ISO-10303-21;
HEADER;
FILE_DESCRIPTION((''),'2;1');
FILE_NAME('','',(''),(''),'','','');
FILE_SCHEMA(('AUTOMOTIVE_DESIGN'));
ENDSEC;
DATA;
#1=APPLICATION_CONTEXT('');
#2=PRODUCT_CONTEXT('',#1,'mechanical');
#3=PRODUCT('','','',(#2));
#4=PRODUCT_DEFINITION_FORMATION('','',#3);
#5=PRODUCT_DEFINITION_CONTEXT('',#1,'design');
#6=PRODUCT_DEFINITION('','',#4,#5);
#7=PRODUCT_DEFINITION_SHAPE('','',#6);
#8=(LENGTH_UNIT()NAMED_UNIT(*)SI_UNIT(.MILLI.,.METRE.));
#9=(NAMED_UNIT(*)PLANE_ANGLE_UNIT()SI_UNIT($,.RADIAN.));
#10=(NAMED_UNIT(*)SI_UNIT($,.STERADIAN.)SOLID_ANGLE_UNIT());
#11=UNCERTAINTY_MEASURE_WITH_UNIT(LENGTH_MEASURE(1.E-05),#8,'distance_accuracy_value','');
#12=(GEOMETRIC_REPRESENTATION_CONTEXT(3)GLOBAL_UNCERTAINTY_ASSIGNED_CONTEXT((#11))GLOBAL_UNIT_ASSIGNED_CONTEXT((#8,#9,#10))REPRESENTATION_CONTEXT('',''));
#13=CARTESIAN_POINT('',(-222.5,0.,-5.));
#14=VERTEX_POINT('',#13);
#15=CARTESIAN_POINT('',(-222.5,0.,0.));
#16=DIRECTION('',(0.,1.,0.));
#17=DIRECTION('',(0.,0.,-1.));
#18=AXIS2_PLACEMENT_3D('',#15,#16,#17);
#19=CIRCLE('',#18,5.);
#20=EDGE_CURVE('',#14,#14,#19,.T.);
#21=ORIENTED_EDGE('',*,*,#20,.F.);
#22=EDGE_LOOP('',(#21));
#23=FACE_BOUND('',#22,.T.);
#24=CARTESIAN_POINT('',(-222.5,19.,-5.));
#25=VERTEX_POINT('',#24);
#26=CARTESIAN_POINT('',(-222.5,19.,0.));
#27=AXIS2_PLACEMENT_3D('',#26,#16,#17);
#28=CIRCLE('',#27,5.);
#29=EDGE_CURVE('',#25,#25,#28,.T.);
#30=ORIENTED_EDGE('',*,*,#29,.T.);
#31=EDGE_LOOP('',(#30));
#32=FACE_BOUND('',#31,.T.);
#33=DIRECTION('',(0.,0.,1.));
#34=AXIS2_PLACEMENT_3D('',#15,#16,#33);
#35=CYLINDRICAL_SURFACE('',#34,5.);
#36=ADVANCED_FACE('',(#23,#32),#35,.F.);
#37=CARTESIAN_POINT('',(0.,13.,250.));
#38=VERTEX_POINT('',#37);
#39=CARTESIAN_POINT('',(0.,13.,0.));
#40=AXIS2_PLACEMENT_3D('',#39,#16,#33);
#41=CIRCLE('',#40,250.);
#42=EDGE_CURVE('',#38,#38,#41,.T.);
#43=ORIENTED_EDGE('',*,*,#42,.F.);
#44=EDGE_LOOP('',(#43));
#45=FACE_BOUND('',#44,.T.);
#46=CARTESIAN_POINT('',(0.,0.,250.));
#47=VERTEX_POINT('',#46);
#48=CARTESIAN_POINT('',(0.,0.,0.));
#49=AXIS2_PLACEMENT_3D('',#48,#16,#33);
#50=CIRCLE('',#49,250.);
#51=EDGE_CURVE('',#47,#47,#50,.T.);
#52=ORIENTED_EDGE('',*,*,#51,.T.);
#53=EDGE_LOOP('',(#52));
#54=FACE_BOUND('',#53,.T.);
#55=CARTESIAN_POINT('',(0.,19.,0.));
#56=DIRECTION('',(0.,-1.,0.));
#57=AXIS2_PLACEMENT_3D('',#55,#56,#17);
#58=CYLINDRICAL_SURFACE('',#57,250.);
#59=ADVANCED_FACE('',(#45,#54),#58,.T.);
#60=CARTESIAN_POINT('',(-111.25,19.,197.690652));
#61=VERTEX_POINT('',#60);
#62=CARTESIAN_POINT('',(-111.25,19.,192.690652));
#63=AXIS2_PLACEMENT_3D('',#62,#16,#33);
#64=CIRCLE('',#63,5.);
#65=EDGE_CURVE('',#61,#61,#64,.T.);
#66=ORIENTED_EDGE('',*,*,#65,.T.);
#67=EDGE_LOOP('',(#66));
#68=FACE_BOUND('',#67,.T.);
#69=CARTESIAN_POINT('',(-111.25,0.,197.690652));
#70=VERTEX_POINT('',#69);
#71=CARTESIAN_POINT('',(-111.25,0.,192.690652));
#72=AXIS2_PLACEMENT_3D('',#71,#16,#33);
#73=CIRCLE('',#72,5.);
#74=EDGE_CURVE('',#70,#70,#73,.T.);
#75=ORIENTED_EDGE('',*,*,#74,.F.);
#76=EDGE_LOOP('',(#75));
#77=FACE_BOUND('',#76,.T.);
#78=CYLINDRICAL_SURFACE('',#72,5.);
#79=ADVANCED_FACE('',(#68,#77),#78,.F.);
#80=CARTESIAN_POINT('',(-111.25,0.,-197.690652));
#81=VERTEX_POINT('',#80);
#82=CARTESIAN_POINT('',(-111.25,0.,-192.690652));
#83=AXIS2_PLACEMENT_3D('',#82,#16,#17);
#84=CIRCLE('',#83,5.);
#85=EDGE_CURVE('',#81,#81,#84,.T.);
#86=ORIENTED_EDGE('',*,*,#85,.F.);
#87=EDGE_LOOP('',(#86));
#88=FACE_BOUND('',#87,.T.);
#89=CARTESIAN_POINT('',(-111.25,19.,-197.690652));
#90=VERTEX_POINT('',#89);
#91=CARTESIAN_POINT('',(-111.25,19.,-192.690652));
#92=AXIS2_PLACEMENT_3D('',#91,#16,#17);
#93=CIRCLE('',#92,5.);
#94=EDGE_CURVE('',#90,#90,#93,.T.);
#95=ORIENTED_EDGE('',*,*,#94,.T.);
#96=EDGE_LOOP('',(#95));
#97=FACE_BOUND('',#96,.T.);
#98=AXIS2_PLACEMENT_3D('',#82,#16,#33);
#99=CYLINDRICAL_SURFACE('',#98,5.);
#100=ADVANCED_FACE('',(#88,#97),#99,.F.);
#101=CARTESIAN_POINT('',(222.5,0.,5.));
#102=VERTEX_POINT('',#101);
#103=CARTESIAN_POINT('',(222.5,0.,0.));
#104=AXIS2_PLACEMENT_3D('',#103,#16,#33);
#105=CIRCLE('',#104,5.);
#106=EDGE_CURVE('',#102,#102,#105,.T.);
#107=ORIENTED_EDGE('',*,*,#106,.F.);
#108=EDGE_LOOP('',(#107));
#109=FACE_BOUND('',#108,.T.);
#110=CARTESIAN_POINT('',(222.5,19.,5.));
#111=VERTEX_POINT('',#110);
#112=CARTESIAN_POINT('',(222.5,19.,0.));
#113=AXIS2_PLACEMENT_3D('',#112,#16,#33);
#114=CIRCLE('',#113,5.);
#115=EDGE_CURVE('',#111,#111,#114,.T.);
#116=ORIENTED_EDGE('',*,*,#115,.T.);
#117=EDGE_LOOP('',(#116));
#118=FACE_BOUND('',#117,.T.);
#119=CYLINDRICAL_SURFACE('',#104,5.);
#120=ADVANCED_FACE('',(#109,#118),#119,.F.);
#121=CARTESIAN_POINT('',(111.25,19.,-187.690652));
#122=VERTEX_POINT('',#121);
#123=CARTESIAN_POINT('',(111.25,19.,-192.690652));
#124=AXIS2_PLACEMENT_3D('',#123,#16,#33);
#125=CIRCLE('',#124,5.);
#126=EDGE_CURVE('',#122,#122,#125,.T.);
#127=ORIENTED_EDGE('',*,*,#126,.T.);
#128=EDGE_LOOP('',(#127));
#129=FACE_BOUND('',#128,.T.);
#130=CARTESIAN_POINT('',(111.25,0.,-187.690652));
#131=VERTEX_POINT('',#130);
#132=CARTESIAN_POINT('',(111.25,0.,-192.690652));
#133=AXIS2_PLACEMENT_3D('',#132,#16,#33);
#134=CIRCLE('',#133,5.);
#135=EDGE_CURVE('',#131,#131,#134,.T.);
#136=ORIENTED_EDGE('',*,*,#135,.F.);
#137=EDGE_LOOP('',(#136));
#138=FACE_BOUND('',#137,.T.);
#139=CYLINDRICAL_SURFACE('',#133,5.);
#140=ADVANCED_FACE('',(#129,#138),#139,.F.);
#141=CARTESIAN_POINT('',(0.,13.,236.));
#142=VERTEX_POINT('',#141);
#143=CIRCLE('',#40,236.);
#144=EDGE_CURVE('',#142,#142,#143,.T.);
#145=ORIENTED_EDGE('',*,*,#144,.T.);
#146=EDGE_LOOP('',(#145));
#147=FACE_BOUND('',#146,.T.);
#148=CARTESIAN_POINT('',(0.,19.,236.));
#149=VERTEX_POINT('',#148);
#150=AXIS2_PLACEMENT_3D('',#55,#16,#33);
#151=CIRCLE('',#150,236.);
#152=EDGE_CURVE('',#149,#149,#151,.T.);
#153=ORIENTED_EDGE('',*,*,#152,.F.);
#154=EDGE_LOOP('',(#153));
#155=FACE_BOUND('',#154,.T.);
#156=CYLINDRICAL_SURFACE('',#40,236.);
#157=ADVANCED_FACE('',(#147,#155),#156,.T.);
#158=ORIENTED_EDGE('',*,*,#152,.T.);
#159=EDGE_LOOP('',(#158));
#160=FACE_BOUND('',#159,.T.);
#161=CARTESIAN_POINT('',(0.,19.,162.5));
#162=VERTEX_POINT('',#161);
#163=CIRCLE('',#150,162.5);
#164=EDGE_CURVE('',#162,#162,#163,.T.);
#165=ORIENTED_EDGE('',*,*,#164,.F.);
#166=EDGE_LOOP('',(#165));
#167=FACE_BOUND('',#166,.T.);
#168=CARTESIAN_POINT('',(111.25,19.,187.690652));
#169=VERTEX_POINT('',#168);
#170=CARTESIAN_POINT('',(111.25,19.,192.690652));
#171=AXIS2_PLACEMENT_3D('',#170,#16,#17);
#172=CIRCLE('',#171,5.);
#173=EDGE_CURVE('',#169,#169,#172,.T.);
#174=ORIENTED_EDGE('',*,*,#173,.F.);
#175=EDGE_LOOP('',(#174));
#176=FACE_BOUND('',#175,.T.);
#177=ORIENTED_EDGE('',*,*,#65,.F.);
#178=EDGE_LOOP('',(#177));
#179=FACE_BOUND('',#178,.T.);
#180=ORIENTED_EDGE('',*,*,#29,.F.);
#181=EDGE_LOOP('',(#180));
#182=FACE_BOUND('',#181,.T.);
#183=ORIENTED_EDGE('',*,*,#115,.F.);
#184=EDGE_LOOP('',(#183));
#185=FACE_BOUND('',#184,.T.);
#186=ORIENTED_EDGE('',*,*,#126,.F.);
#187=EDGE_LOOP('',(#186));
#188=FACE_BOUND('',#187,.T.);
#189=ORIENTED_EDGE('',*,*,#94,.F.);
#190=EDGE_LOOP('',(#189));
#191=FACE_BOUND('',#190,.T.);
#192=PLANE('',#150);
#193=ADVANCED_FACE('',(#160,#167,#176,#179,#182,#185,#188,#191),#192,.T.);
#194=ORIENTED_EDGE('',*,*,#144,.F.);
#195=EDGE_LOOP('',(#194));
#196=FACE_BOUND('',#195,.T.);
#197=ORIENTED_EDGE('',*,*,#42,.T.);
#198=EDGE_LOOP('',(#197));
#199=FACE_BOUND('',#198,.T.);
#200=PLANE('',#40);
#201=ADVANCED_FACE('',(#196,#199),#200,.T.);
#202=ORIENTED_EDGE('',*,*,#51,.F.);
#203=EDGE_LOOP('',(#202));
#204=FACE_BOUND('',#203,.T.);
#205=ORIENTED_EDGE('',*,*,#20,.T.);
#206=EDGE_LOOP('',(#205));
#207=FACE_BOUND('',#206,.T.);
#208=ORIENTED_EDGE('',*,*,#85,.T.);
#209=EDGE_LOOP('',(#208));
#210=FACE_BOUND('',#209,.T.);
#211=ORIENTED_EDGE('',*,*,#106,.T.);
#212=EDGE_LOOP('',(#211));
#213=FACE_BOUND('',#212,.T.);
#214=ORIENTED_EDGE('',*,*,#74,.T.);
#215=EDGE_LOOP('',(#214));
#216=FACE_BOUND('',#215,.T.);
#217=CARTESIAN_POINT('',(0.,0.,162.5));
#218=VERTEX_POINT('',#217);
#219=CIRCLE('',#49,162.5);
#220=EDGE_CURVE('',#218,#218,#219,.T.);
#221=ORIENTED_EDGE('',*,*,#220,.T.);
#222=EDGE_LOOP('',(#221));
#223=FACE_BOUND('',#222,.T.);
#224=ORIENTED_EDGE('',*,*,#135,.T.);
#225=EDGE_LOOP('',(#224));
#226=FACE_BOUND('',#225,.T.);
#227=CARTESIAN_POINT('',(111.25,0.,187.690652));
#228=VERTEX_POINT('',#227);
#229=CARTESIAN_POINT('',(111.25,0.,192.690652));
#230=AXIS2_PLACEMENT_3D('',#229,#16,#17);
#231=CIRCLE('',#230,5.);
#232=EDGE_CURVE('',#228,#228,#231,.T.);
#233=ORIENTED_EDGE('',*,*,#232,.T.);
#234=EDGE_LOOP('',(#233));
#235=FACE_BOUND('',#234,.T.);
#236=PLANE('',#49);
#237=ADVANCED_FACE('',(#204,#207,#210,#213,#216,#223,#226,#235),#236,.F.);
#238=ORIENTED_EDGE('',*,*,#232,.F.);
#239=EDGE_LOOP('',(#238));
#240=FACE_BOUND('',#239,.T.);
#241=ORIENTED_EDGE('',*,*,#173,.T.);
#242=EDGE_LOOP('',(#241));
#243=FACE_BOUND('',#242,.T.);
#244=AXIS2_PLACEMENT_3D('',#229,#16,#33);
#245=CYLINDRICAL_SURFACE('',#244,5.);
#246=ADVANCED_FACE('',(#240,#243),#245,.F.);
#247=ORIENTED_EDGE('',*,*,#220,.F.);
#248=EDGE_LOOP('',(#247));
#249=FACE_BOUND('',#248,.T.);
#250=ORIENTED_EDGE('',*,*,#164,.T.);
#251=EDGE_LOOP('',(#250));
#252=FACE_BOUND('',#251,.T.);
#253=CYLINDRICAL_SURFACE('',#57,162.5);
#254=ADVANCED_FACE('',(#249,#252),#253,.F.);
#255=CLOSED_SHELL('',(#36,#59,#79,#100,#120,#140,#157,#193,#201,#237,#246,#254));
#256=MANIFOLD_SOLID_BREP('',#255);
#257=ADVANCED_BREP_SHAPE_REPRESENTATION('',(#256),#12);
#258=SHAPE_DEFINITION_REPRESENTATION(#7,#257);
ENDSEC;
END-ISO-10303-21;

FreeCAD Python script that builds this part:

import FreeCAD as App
import Part
import Sketcher
Q = App.Units.Quantity

doc = App.newDocument("Part")
body = doc.addObject("PartDesign::Body", "Body")

sketch1 = body.newObject("Sketcher::SketchObject", "Sketch")
sketch1.AttachmentSupport = (doc.getObject("XZ_Plane"), [""])
sketch1.MapMode = "FlatFace"
sketch1.addGeometry([
    Part.Circle(App.Vector(0, 0, 0), App.Vector(0, 0, 1), 250),
    Part.Circle(App.Vector(0, 0, 0), App.Vector(0, 0, 1), 162.5),
], False)
sketch1.addConstraint([
    Sketcher.Constraint("Coincident", 0, 3, -1, 1),
    Sketcher.Constraint("Coincident", 1, 3, -1, 1),
    Sketcher.Constraint("Diameter", 0, Q("500 mm")),
    Sketcher.Constraint("Diameter", 1, Q("325 mm")),
])
pad1 = body.newObject("PartDesign::Pad", "Pad")
pad1.Profile = sketch1
pad1.Length = 19
pad1.Reversed = True

sketch2 = body.newObject("Sketcher::SketchObject", "Sketch001")
sketch2.AttachmentSupport = (doc.getObject("XZ_Plane"), [""])
sketch2.MapMode = "FlatFace"
sketch2.AttachmentOffset = App.Placement(App.Vector(0, 0, -13), App.Rotation())
sketch2.addGeometry([
    Part.Circle(App.Vector(0, 0, 0), App.Vector(0, 0, 1), 250),
    Part.Circle(App.Vector(0, 0, 0), App.Vector(0, 0, 1), 236),
], False)
sketch2.addConstraint([
    Sketcher.Constraint("Coincident", 0, 3, -1, 1),
    Sketcher.Constraint("Coincident", 1, 3, -1, 1),
    Sketcher.Constraint("Diameter", 0, Q("500 mm")),
    Sketcher.Constraint("Diameter", 1, Q("472 mm")),
])
pocket1 = body.newObject("PartDesign::Pocket", "Pocket")
pocket1.Profile = sketch2
pocket1.Length = 6

sketch3 = body.newObject("Sketcher::SketchObject", "Sketch002")
sketch3.AttachmentSupport = (doc.getObject("XZ_Plane"), [""])
sketch3.MapMode = "FlatFace"
sketch3.AttachmentOffset = App.Placement(App.Vector(0, 0, -19), App.Rotation())
sketch3.addGeometry([
    Part.Circle(App.Vector(111.25, -192.690652, 0), App.Vector(0, 0, 1), 5),
    Part.Circle(App.Vector(111.25, 192.690652, 0), App.Vector(0, 0, 1), 5),
    Part.Circle(App.Vector(-111.25, 192.690652, 0), App.Vector(0, 0, 1), 5),
    Part.Circle(App.Vector(222.5, 0, 0), App.Vector(0, 0, 1), 5),
    Part.Circle(App.Vector(-111.25, -192.690652, 0), App.Vector(0, 0, 1), 5),
    Part.Circle(App.Vector(-222.5, 0, 0), App.Vector(0, 0, 1), 5),
], False)
sketch3.addConstraint([
    Sketcher.Constraint("Equal", 0, 1),
    Sketcher.Constraint("Equal", 1, 2),
    Sketcher.Constraint("Equal", 2, 3),
    Sketcher.Constraint("Equal", 3, 4),
    Sketcher.Constraint("Equal", 4, 5),
    Sketcher.Constraint("Symmetric", 0, 3, 2, 3, -1, 1),
    Sketcher.Constraint("Symmetric", 1, 3, 4, 3, -1, 1),
    Sketcher.Constraint("Symmetric", 3, 3, 5, 3, -1, 1),
    Sketcher.Constraint("Symmetric", 1, 3, 2, 3, -2),
    Sketcher.Constraint("PointOnObject", 3, 3, -1),
    Sketcher.Constraint("Diameter", 0, Q("10 mm")),
    Sketcher.Constraint("DistanceX", 5, 3, 3, 3, Q("445 mm")),
    Sketcher.Constraint("DistanceX", 2, 3, 1, 3, Q("222.5 mm")),
    Sketcher.Constraint("DistanceY", 0, 3, -1, 1, Q("192.690652 mm")),
])
pocket2 = body.newObject("PartDesign::Pocket", "Pocket001")
pocket2.Profile = sketch3
pocket2.Type = "ThroughAll"
pocket2.Reversed = True

doc.recompute()
